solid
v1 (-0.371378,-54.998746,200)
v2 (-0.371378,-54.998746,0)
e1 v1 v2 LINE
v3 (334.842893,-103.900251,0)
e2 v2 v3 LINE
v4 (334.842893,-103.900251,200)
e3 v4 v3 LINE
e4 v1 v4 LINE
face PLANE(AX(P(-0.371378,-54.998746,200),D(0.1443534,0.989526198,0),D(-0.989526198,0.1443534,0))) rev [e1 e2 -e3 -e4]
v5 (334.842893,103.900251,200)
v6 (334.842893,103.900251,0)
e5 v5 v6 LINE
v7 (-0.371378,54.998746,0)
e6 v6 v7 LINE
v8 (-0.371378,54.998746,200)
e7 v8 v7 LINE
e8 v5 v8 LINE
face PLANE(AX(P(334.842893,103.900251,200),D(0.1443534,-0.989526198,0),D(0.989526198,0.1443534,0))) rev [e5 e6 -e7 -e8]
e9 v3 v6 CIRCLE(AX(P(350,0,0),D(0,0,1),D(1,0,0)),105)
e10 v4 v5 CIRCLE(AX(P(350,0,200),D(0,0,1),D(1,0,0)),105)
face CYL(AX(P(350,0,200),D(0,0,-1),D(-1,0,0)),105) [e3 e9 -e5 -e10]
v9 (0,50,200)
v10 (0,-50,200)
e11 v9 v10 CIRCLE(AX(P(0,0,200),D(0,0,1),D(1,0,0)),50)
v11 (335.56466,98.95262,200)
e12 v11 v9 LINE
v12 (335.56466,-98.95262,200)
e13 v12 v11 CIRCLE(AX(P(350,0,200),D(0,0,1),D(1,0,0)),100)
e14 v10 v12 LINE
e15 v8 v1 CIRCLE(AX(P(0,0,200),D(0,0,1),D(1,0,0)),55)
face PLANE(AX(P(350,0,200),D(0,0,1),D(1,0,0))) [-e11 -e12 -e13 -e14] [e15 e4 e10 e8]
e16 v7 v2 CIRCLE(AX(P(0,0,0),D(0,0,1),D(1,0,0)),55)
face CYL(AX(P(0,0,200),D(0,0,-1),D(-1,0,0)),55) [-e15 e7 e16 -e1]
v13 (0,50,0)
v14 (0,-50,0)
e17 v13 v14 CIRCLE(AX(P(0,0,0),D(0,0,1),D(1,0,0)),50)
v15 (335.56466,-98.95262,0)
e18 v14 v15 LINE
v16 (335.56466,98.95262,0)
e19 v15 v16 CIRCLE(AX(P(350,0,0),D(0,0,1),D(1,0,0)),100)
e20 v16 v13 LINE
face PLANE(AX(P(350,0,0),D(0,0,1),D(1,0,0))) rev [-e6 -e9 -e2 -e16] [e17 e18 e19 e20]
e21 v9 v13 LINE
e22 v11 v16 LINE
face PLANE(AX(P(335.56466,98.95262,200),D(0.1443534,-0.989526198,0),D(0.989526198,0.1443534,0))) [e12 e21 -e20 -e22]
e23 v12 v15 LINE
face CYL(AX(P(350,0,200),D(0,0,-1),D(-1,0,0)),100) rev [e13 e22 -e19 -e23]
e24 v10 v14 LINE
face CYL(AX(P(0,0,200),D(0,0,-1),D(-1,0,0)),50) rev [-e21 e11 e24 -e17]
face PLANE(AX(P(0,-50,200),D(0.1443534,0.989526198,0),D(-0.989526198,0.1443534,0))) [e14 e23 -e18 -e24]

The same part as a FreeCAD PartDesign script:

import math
import FreeCAD as App
import Part
import Sketcher
from FreeCAD import Vector
Q = App.Units.Quantity

doc = App.newDocument("Part")
body = doc.addObject("PartDesign::Body", "Body")

sketch1 = body.newObject("Sketcher::SketchObject", "Sketch")
sketch1.AttachmentSupport = (doc.getObject("XY_Plane"), [""])
sketch1.MapMode = "FlatFace"
sketch1.addGeometry([
    Part.LineSegment(Vector(334.842893, 103.900251, 0), Vector(-0.371378, 54.998746, 0)),
    Part.ArcOfCircle(Part.Circle(Vector(0, 0, 0), Vector(0, 0, 1), 55), math.radians(90.386883), math.radians(269.613117)),
    Part.LineSegment(Vector(-0.371378, -54.998746, 0), Vector(334.842893, -103.900251, 0)),
    Part.ArcOfCircle(Part.Circle(Vector(350, 0, 0), Vector(0, 0, 1), 105), math.radians(-98.299838), math.radians(98.299838)),
    Part.LineSegment(Vector(0, 50, 0), Vector(335.56466, 98.95262, 0)),
    Part.ArcOfCircle(Part.Circle(Vector(350, 0, 0), Vector(0, 0, 1), 100), math.radians(-98.299838), math.radians(98.299838)),
    Part.LineSegment(Vector(335.56466, -98.95262, 0), Vector(0, -50, 0)),
    Part.ArcOfCircle(Part.Circle(Vector(0, 0, 0), Vector(0, 0, 1), 50), math.radians(90), math.radians(270)),
], False)
sketch1.addConstraint([
    Sketcher.Constraint("Coincident", 0, 2, 1, 1),
    Sketcher.Constraint("Coincident", 1, 2, 2, 1),
    Sketcher.Constraint("Tangent", 2, 2, 3, 1),
    Sketcher.Constraint("Tangent", 3, 2, 0, 1),
    Sketcher.Constraint("Tangent", 4, 2, 5, 2),
    Sketcher.Constraint("Tangent", 5, 1, 6, 1),
    Sketcher.Constraint("Coincident", 6, 2, 7, 2),
    Sketcher.Constraint("Coincident", 7, 1, 4, 1),
    Sketcher.Constraint("Coincident", 1, 3, -1, 1),
    Sketcher.Constraint("Coincident", 7, 3, -1, 1),
    Sketcher.Constraint("Coincident", 5, 3, 3, 3),
    Sketcher.Constraint("Symmetric", 2, 2, 3, 2, -1),
    Sketcher.Constraint("PointOnObject", 6, 2, -2),
    Sketcher.Constraint("PointOnObject", 7, 1, -2),
    Sketcher.Constraint("Parallel", 0, 4),
    Sketcher.Constraint("Radius", 1, Q("55 mm")),
    Sketcher.Constraint("Radius", 3, Q("105 mm")),
    Sketcher.Constraint("Radius", 5, Q("100 mm")),
    Sketcher.Constraint("Radius", 7, Q("50 mm")),
    Sketcher.Constraint("DistanceX", -1, 1, 3, 3, Q("350 mm")),
])
pad1 = body.newObject("PartDesign::Pad", "Pad")
pad1.Profile = sketch1
pad1.Length = 200

doc.recompute()
